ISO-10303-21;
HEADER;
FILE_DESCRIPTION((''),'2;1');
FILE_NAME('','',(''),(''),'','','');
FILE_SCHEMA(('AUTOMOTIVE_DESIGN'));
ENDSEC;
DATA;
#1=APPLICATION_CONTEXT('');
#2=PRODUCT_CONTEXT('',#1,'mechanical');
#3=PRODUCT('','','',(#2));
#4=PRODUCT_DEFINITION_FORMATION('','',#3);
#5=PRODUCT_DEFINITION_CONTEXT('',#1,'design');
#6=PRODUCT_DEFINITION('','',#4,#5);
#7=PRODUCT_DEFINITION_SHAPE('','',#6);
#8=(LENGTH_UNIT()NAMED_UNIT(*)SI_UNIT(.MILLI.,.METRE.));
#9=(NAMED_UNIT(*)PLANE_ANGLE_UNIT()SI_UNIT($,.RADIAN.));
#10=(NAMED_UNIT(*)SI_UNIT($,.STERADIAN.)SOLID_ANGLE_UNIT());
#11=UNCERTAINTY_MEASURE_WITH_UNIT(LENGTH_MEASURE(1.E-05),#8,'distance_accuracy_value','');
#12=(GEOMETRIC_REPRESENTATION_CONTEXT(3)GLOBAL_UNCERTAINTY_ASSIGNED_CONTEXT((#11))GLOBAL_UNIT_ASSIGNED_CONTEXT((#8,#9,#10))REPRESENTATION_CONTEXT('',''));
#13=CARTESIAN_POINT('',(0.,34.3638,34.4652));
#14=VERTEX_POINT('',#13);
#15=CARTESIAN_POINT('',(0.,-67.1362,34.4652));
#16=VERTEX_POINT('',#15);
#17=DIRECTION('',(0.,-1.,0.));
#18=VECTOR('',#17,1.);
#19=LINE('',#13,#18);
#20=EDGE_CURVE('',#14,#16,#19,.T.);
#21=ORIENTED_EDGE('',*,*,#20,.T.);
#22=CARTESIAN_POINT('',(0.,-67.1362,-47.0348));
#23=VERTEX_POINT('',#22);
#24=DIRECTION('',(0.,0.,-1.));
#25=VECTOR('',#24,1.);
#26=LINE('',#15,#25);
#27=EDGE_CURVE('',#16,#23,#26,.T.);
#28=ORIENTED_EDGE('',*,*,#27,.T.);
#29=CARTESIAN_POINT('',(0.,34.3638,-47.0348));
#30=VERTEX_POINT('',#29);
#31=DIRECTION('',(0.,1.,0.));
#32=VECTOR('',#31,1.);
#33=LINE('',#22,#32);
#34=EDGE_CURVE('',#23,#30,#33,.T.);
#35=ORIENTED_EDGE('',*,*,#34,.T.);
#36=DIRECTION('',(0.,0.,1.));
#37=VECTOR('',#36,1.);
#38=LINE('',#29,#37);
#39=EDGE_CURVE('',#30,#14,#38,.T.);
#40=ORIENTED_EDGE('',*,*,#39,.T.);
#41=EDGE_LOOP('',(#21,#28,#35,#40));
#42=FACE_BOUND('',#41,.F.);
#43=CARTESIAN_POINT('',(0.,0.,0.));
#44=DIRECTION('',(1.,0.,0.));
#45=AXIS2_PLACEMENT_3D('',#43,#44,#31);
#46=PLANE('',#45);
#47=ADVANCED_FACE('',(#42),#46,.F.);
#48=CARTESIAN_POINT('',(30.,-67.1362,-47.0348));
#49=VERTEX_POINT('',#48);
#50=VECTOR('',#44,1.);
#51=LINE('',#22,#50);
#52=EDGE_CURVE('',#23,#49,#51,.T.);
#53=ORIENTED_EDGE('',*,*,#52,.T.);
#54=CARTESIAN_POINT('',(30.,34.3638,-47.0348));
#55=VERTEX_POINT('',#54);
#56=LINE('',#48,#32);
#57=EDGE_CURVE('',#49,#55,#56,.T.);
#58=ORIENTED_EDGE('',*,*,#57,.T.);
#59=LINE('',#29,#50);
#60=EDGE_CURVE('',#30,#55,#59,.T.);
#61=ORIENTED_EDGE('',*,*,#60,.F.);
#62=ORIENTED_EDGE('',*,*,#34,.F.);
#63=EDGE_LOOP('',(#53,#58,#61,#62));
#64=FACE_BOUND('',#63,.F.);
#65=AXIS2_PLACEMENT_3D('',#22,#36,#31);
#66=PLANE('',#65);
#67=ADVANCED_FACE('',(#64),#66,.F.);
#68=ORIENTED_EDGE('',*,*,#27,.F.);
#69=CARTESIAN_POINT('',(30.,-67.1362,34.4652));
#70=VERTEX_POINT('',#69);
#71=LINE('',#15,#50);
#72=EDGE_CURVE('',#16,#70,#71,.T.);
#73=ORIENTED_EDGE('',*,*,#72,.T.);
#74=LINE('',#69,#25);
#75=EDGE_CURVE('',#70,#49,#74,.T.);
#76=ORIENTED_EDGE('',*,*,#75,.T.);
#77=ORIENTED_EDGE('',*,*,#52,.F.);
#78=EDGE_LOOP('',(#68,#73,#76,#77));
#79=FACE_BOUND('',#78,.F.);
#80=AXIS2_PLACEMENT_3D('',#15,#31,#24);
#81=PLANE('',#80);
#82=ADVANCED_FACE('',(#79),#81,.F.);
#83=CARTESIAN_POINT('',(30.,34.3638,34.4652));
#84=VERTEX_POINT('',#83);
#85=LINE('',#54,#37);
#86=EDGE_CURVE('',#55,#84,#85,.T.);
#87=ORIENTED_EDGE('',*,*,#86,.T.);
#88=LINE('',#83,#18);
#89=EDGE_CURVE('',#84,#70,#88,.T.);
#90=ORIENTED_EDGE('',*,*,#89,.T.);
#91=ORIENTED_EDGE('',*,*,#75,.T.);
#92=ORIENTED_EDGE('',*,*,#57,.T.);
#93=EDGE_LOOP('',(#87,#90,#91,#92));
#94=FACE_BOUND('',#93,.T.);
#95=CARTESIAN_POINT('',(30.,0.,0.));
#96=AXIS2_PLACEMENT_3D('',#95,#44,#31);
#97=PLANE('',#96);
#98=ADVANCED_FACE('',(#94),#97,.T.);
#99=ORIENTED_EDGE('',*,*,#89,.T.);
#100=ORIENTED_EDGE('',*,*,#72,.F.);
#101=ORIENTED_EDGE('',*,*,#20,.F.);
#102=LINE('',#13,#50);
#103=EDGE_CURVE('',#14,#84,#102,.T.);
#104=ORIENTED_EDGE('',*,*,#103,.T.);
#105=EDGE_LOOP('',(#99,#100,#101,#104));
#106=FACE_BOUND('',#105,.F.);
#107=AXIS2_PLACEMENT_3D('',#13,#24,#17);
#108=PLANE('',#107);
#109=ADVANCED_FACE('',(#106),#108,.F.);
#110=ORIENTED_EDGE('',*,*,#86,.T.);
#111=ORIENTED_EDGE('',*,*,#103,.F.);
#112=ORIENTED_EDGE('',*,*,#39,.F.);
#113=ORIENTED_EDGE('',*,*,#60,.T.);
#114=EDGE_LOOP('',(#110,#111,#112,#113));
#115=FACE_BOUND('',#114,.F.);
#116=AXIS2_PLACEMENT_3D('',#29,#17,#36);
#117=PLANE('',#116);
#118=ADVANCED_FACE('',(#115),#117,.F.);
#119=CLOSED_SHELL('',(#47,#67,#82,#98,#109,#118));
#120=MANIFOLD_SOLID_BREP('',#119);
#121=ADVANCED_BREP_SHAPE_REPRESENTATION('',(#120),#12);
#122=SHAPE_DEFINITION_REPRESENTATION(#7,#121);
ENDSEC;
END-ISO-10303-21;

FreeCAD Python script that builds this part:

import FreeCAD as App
import Part
import Sketcher
Q = App.Units.Quantity


def add_polygon(sketch, points):
    """Adds a closed chain of lines whose ends are joined by coincident constraints."""
    first, n = sketch.GeometryCount, len(points)
    for a, b in zip(points, points[1:] + points[:1]):
        sketch.addGeometry(Part.LineSegment(App.Vector(*a, 0), App.Vector(*b, 0)), False)
    for i in range(n):
        sketch.addConstraint(Sketcher.Constraint("Coincident", first + i, 2, first + (i + 1) % n, 1))

doc = App.newDocument("Part")
body = doc.addObject("PartDesign::Body", "Body")

# Sketch on YZ plane
sketch1 = body.newObject("Sketcher::SketchObject", "Sketch")
sketch1.AttachmentSupport = (doc.getObject("YZ_Plane"), [""])
sketch1.MapMode = "FlatFace"
add_polygon(sketch1, [(34, -47), (34, 34), (-67, 34), (-67, -47)])  # lines 0-3
sketch1.addConstraint(Sketcher.Constraint("Vertical", 0))
sketch1.addConstraint(Sketcher.Constraint("Horizontal", 1))
sketch1.addConstraint(Sketcher.Constraint("Vertical", 2))
sketch1.addConstraint(Sketcher.Constraint("Horizontal", 3))
sketch1.addConstraint(Sketcher.Constraint("DistanceX", 1, 2, 1, 1, Q("101.5 mm")))
sketch1.addConstraint(Sketcher.Constraint("DistanceY", 0, 1, 0, 2, Q("81.5 mm")))
sketch1.addConstraint(Sketcher.Constraint("DistanceX", -1, 1, 0, 2, Q("34.3638 mm")))
sketch1.addConstraint(Sketcher.Constraint("DistanceY", -1, 1, 0, 2, Q("34.4652 mm")))
pad1 = body.newObject("PartDesign::Pad", "Pad")
pad1.Profile = sketch1
pad1.Length = 30

doc.recompute()
